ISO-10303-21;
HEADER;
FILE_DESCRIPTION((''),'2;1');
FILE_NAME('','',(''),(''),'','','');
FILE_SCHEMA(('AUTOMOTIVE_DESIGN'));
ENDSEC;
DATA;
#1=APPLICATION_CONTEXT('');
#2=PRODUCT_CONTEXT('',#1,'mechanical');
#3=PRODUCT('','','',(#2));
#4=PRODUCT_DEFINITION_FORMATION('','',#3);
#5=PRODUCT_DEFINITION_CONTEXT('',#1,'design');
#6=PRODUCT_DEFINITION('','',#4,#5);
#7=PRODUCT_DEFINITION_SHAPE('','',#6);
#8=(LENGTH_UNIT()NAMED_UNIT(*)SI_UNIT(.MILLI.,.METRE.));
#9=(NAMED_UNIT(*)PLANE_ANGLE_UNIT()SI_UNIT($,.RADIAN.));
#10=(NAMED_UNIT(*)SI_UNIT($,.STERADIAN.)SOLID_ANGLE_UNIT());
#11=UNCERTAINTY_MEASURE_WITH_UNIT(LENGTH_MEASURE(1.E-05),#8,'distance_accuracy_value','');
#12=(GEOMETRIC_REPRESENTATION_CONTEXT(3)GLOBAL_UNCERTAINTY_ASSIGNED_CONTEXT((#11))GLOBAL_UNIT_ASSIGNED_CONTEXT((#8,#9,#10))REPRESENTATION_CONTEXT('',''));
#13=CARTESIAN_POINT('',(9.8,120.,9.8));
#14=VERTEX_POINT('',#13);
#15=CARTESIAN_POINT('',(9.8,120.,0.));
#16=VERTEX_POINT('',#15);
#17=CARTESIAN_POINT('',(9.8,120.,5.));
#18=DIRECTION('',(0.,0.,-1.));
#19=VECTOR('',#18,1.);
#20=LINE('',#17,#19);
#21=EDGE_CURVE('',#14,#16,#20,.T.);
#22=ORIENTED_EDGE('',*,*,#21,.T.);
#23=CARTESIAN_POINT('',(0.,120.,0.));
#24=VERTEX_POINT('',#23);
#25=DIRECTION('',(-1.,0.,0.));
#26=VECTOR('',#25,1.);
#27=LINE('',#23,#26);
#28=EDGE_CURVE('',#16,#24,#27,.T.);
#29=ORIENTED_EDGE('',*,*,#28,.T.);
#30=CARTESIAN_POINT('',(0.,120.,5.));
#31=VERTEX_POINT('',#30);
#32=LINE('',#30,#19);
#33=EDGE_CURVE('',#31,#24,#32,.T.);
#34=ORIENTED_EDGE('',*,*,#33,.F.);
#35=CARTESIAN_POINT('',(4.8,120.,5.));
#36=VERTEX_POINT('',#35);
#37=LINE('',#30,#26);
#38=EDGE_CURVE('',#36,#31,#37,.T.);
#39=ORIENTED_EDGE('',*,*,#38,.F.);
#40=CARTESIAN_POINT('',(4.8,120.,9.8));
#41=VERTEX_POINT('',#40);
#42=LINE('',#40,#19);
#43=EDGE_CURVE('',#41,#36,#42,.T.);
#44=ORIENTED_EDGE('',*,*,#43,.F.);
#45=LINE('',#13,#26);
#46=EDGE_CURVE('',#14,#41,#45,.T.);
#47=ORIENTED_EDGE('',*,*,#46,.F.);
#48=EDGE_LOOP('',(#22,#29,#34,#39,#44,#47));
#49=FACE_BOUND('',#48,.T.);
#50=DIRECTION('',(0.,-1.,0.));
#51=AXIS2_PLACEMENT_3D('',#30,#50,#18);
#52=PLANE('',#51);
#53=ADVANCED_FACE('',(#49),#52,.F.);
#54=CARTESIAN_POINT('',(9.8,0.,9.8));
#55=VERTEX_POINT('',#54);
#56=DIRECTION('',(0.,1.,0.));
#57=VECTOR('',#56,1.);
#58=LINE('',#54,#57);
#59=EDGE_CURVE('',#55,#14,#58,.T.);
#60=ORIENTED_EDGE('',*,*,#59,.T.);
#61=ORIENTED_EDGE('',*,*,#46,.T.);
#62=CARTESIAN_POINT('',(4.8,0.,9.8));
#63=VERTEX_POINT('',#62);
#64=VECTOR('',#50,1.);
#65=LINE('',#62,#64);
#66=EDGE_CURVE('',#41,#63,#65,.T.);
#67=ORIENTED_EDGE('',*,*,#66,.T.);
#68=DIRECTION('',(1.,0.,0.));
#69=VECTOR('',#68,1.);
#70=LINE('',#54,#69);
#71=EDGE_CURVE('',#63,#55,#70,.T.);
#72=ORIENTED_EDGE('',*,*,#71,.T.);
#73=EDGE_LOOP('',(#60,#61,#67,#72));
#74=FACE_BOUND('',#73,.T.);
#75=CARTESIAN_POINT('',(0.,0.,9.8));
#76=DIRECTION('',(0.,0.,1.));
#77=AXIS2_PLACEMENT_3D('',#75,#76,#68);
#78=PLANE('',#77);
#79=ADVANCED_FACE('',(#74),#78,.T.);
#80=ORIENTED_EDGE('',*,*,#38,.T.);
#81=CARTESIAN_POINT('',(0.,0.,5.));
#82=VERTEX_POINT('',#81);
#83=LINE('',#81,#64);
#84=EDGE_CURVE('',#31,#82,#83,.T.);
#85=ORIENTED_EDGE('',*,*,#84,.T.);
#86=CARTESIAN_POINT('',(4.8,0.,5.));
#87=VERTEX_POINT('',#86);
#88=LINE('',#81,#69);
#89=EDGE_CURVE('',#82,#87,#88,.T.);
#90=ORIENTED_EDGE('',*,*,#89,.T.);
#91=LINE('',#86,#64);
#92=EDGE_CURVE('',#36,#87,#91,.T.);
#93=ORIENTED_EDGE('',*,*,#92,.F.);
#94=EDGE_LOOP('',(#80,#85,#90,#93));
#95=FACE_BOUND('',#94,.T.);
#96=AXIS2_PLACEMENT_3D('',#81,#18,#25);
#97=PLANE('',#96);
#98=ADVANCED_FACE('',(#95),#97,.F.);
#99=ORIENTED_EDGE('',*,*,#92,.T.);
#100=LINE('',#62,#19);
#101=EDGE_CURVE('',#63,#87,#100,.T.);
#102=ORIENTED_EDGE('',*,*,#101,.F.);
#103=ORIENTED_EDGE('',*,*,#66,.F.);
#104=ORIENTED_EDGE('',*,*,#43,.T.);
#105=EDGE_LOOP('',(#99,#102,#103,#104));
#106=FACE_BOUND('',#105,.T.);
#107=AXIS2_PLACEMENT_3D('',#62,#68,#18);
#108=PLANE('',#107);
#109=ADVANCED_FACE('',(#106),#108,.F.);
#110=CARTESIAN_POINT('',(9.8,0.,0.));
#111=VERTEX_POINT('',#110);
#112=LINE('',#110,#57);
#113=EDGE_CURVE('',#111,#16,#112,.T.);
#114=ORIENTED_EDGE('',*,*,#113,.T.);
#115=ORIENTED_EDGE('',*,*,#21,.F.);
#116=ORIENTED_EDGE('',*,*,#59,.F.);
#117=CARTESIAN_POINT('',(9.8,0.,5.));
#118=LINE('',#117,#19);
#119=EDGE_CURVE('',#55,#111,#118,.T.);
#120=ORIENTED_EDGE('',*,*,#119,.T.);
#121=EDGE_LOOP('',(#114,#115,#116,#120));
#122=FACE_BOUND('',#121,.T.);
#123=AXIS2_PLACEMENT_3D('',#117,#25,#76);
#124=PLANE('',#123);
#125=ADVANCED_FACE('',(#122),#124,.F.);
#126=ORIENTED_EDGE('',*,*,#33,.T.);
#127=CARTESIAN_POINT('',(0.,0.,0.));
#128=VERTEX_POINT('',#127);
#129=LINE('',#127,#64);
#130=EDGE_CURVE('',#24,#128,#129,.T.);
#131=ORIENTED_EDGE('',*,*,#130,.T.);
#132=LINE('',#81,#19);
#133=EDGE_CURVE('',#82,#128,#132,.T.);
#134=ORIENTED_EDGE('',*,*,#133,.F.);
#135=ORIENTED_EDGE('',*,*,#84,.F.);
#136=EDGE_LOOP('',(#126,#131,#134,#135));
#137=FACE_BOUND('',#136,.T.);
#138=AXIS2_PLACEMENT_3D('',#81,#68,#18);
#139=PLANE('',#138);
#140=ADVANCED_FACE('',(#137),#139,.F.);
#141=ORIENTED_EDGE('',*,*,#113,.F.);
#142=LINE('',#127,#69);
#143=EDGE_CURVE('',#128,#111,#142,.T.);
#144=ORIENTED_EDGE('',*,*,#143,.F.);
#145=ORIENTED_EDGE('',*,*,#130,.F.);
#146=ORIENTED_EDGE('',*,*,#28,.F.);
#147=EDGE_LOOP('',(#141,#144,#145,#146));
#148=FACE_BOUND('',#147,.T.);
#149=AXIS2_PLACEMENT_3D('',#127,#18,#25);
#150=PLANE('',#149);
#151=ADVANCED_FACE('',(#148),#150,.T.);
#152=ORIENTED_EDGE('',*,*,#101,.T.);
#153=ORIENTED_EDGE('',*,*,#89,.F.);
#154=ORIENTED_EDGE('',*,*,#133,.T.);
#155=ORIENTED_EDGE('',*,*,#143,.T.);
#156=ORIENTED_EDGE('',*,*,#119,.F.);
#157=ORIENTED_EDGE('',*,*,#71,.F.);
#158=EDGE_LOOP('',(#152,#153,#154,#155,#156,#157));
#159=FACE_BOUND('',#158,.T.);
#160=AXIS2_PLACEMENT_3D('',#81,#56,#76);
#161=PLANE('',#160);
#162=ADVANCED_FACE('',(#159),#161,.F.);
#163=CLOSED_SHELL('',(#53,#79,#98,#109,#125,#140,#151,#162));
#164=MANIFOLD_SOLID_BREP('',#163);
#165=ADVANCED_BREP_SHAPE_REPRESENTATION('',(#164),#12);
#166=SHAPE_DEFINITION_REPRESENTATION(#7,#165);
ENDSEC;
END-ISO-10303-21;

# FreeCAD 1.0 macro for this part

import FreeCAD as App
import Part
import Sketcher


def add_polygon(sketch, points):
    """Adds a closed chain of lines whose ends are joined by coincident constraints."""
    first, n = sketch.GeometryCount, len(points)
    for a, b in zip(points, points[1:] + points[:1]):
        sketch.addGeometry(Part.LineSegment(App.Vector(*a, 0), App.Vector(*b, 0)), False)
    for i in range(n):
        sketch.addConstraint(Sketcher.Constraint("Coincident", first + i, 2, first + (i + 1) % n, 1))

doc = App.newDocument("Part")
body = doc.addObject("PartDesign::Body", "Body")

sketch1 = body.newObject("Sketcher::SketchObject", "Sketch")
sketch1.AttachmentSupport = (doc.getObject("XY_Plane"), [""])
sketch1.MapMode = "FlatFace"
add_polygon(sketch1, [(0, 120), (0, 0), (10, 0), (10, 120)])
sketch1.addConstraint(Sketcher.Constraint("Vertical", 0))
sketch1.addConstraint(Sketcher.Constraint("Horizontal", 1))
sketch1.addConstraint(Sketcher.Constraint("Vertical", 2))
sketch1.addConstraint(Sketcher.Constraint("Horizontal", 3))
sketch1.addConstraint(Sketcher.Constraint("Coincident", 0, 2, -1, 1))
sketch1.addConstraint(Sketcher.Constraint("DistanceY", 0, 2, 0, 1, 120.0))
sketch1.addConstraint(Sketcher.Constraint("DistanceX", 1, 1, 1, 2, 9.8))
pad1 = body.newObject("PartDesign::Pad", "Pad")
pad1.Profile = sketch1
pad1.Length = 5

sketch2 = body.newObject("Sketcher::SketchObject", "Sketch001")
sketch2.AttachmentSupport = (doc.getObject("XY_Plane"), [""])
sketch2.MapMode = "FlatFace"
sketch2.AttachmentOffset = App.Placement(App.Vector(0, 0, 5), App.Rotation())
add_polygon(sketch2, [(5, 120), (5, 0), (10, 0), (10, 120)])
sketch2.addConstraint(Sketcher.Constraint("Vertical", 0))
sketch2.addConstraint(Sketcher.Constraint("Horizontal", 1))
sketch2.addConstraint(Sketcher.Constraint("Vertical", 2))
sketch2.addConstraint(Sketcher.Constraint("Horizontal", 3))
sketch2.addConstraint(Sketcher.Constraint("PointOnObject", 0, 2, -1))
sketch2.addConstraint(Sketcher.Constraint("DistanceX", 1, 1, 1, 2, 5.0))
sketch2.addConstraint(Sketcher.Constraint("DistanceY", 0, 2, 0, 1, 120.0))
sketch2.addConstraint(Sketcher.Constraint("DistanceX", -1, 1, 0, 2, 4.8))
pad2 = body.newObject("PartDesign::Pad", "Pad001")
pad2.Profile = sketch2
pad2.Length = 4.8

doc.recompute()
